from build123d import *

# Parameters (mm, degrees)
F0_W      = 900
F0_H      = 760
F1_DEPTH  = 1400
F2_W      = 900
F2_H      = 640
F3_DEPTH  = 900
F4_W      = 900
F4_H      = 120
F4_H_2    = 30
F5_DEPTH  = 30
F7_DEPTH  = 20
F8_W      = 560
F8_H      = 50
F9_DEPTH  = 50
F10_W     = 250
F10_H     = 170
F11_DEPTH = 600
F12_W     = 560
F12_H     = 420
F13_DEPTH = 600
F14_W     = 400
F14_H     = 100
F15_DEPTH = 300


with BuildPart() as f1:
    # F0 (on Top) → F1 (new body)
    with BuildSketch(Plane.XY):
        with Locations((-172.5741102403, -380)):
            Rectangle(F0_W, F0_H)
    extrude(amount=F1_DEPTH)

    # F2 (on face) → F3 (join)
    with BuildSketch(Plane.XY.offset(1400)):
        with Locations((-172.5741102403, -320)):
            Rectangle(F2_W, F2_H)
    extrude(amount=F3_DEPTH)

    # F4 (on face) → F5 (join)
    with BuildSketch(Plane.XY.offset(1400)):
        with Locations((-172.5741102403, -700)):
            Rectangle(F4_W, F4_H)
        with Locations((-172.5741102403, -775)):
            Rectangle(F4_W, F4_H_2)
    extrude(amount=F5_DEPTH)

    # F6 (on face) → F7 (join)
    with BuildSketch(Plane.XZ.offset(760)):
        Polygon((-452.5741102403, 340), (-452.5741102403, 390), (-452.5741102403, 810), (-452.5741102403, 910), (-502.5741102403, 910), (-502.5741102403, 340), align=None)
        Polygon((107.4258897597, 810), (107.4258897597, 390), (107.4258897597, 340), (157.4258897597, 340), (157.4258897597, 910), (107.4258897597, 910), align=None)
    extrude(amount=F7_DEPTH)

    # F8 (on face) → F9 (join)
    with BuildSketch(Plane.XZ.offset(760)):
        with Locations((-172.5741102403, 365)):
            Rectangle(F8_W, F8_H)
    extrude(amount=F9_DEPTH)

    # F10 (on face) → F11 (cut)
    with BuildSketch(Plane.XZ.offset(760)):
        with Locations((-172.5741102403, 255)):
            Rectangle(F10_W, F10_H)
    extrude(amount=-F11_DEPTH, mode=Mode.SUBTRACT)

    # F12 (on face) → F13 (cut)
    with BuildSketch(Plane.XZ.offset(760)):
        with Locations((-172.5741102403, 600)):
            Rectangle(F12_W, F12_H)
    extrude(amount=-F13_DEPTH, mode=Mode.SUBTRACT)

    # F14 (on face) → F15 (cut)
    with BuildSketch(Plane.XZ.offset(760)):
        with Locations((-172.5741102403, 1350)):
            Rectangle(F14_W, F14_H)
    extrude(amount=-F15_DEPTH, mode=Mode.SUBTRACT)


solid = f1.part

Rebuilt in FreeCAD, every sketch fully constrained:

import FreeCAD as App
import Part
import Sketcher

V = App.Vector
Q = App.Units.Quantity

doc = App.newDocument("Part")
body = doc.addObject("PartDesign::Body", "Body")

# Sketch on XY plane
sketch1 = body.newObject("Sketcher::SketchObject", "Sketch")
sketch1.AttachmentSupport = (doc.getObject("XY_Plane"), [""])
sketch1.MapMode = "FlatFace"
sketch1.addGeometry(Part.LineSegment(V(-623, 0, 0), V(-623, -760, 0)), False)
sketch1.addGeometry(Part.LineSegment(V(-623, -760, 0), V(277, -760, 0)), False)
sketch1.addGeometry(Part.LineSegment(V(277, -760, 0), V(277, 0, 0)), False)
sketch1.addGeometry(Part.LineSegment(V(277, 0, 0), V(-623, 0, 0)), False)
sketch1.addConstraint(Sketcher.Constraint("Coincident", 0, 2, 1, 1))
sketch1.addConstraint(Sketcher.Constraint("Coincident", 1, 2, 2, 1))
sketch1.addConstraint(Sketcher.Constraint("Coincident", 2, 2, 3, 1))
sketch1.addConstraint(Sketcher.Constraint("Coincident", 3, 2, 0, 1))
sketch1.addConstraint(Sketcher.Constraint("Vertical", 0))
sketch1.addConstraint(Sketcher.Constraint("Horizontal", 1))
sketch1.addConstraint(Sketcher.Constraint("Vertical", 2))
sketch1.addConstraint(Sketcher.Constraint("Horizontal", 3))
sketch1.addConstraint(Sketcher.Constraint("PointOnObject", 2, 2, -1))
sketch1.addConstraint(Sketcher.Constraint("DistanceX", 1, 1, 1, 2, Q("900 mm")))
sketch1.addConstraint(Sketcher.Constraint("DistanceY", 0, 2, 0, 1, Q("760 mm")))
sketch1.addConstraint(Sketcher.Constraint("DistanceX", 0, 2, -1, 1, Q("622.57411 mm")))
pad1 = body.newObject("PartDesign::Pad", "Pad")
pad1.Profile = sketch1
pad1.Length = 1400

# Sketch on XY plane
sketch2 = body.newObject("Sketcher::SketchObject", "Sketch001")
sketch2.AttachmentSupport = (doc.getObject("XY_Plane"), [""])
sketch2.MapMode = "FlatFace"
sketch2.AttachmentOffset = App.Placement(V(0, 0, 1400), App.Rotation())
sketch2.addGeometry(Part.LineSegment(V(-623, 0, 0), V(-623, -640, 0)), False)
sketch2.addGeometry(Part.LineSegment(V(-623, -640, 0), V(277, -640, 0)), False)
sketch2.addGeometry(Part.LineSegment(V(277, -640, 0), V(277, 0, 0)), False)
sketch2.addGeometry(Part.LineSegment(V(277, 0, 0), V(-623, 0, 0)), False)
sketch2.addConstraint(Sketcher.Constraint("Coincident", 0, 2, 1, 1))
sketch2.addConstraint(Sketcher.Constraint("Coincident", 1, 2, 2, 1))
sketch2.addConstraint(Sketcher.Constraint("Coincident", 2, 2, 3, 1))
sketch2.addConstraint(Sketcher.Constraint("Coincident", 3, 2, 0, 1))
sketch2.addConstraint(Sketcher.Constraint("Vertical", 0))
sketch2.addConstraint(Sketcher.Constraint("Horizontal", 1))
sketch2.addConstraint(Sketcher.Constraint("Vertical", 2))
sketch2.addConstraint(Sketcher.Constraint("Horizontal", 3))
sketch2.addConstraint(Sketcher.Constraint("PointOnObject", 2, 2, -1))
sketch2.addConstraint(Sketcher.Constraint("DistanceX", 1, 1, 1, 2, Q("900 mm")))
sketch2.addConstraint(Sketcher.Constraint("DistanceY", 0, 2, 0, 1, Q("640 mm")))
sketch2.addConstraint(Sketcher.Constraint("DistanceX", 0, 2, -1, 1, Q("622.57411 mm")))
pad2 = body.newObject("PartDesign::Pad", "Pad001")
pad2.Profile = sketch2
pad2.Length = 900

# Sketch on XY plane
sketch3 = body.newObject("Sketcher::SketchObject", "Sketch002")
sketch3.AttachmentSupport = (doc.getObject("XY_Plane"), [""])
sketch3.MapMode = "FlatFace"
sketch3.AttachmentOffset = App.Placement(V(0, 0, 1400), App.Rotation())
sketch3.addGeometry(Part.LineSegment(V(-623, -640, 0), V(-623, -790, 0)), False)
sketch3.addGeometry(Part.LineSegment(V(-623, -790, 0), V(277, -790, 0)), False)
sketch3.addGeometry(Part.LineSegment(V(277, -790, 0), V(277, -640, 0)), False)
sketch3.addGeometry(Part.LineSegment(V(277, -640, 0), V(-623, -640, 0)), False)
sketch3.addConstraint(Sketcher.Constraint("Coincident", 0, 2, 1, 1))
sketch3.addConstraint(Sketcher.Constraint("Coincident", 1, 2, 2, 1))
sketch3.addConstraint(Sketcher.Constraint("Coincident", 2, 2, 3, 1))
sketch3.addConstraint(Sketcher.Constraint("Coincident", 3, 2, 0, 1))
sketch3.addConstraint(Sketcher.Constraint("Vertical", 0))
sketch3.addConstraint(Sketcher.Constraint("Horizontal", 1))
sketch3.addConstraint(Sketcher.Constraint("Vertical", 2))
sketch3.addConstraint(Sketcher.Constraint("Horizontal", 3))
sketch3.addConstraint(Sketcher.Constraint("DistanceX", 1, 1, 1, 2, Q("900 mm")))
sketch3.addConstraint(Sketcher.Constraint("DistanceY", 0, 2, 0, 1, Q("150 mm")))
sketch3.addConstraint(Sketcher.Constraint("DistanceY", 0, 2, -1, 1, Q("790 mm")))
sketch3.addConstraint(Sketcher.Constraint("DistanceX", 0, 2, -1, 1, Q("622.57411 mm")))
pad3 = body.newObject("PartDesign::Pad", "Pad002")
pad3.Profile = sketch3
pad3.Length = 30

# Sketch on XZ plane
sketch4 = body.newObject("Sketcher::SketchObject", "Sketch003")
sketch4.AttachmentSupport = (doc.getObject("XZ_Plane"), [""])
sketch4.MapMode = "FlatFace"
sketch4.AttachmentOffset = App.Placement(V(0, 0, 760), App.Rotation())
sketch4.addGeometry(Part.LineSegment(V(-453, 340, 0), V(-453, 910, 0)), False)
sketch4.addGeometry(Part.LineSegment(V(-453, 910, 0), V(-503, 910, 0)), False)
sketch4.addGeometry(Part.LineSegment(V(-503, 910, 0), V(-503, 340, 0)), False)
sketch4.addGeometry(Part.LineSegment(V(-503, 340, 0), V(-453, 340, 0)), False)
sketch4.addGeometry(Part.LineSegment(V(107, 340, 0), V(157, 340, 0)), False)
sketch4.addGeometry(Part.LineSegment(V(157, 340, 0), V(157, 910, 0)), False)
sketch4.addGeometry(Part.LineSegment(V(157, 910, 0), V(107, 910, 0)), False)
sketch4.addGeometry(Part.LineSegment(V(107, 910, 0), V(107, 340, 0)), False)
sketch4.addConstraint(Sketcher.Constraint("Coincident", 0, 2, 1, 1))
sketch4.addConstraint(Sketcher.Constraint("Coincident", 1, 2, 2, 1))
sketch4.addConstraint(Sketcher.Constraint("Coincident", 2, 2, 3, 1))
sketch4.addConstraint(Sketcher.Constraint("Coincident", 3, 2, 0, 1))
sketch4.addConstraint(Sketcher.Constraint("Coincident", 4, 2, 5, 1))
sketch4.addConstraint(Sketcher.Constraint("Coincident", 5, 2, 6, 1))
sketch4.addConstraint(Sketcher.Constraint("Coincident", 6, 2, 7, 1))
sketch4.addConstraint(Sketcher.Constraint("Coincident", 7, 2, 4, 1))
sketch4.addConstraint(Sketcher.Constraint("Vertical", 0))
sketch4.addConstraint(Sketcher.Constraint("Horizontal", 1))
sketch4.addConstraint(Sketcher.Constraint("Vertical", 2))
sketch4.addConstraint(Sketcher.Constraint("Horizontal", 3))
sketch4.addConstraint(Sketcher.Constraint("Horizontal", 4))
sketch4.addConstraint(Sketcher.Constraint("Vertical", 5))
sketch4.addConstraint(Sketcher.Constraint("Horizontal", 6))
sketch4.addConstraint(Sketcher.Constraint("Vertical", 7))
sketch4.addConstraint(Sketcher.Constraint("Horizontal", 3, 2, 4, 2))
sketch4.addConstraint(Sketcher.Constraint("Horizontal", 1, 2, 5, 2))
sketch4.addConstraint(Sketcher.Constraint("Equal", 3, 4))
sketch4.addConstraint(Sketcher.Constraint("DistanceX", 1, 2, 1, 1, Q("50 mm")))
sketch4.addConstraint(Sketcher.Constraint("DistanceY", 0, 1, 0, 2, Q("570 mm")))
sketch4.addConstraint(Sketcher.Constraint("DistanceY", -1, 1, 0, 2, Q("910 mm")))
sketch4.addConstraint(Sketcher.Constraint("DistanceX", 3, 2, 4, 2, Q("610 mm")))
sketch4.addConstraint(Sketcher.Constraint("DistanceX", 0, 2, -1, 1, Q("452.57411 mm")))
pad4 = body.newObject("PartDesign::Pad", "Pad003")
pad4.Profile = sketch4
pad4.Length = 20

# Sketch on XZ plane
sketch5 = body.newObject("Sketcher::SketchObject", "Sketch004")
sketch5.AttachmentSupport = (doc.getObject("XZ_Plane"), [""])
sketch5.MapMode = "FlatFace"
sketch5.AttachmentOffset = App.Placement(V(0, 0, 760), App.Rotation())
sketch5.addGeometry(Part.LineSegment(V(-453, 390, 0), V(-453, 340, 0)), False)
sketch5.addGeometry(Part.LineSegment(V(-453, 340, 0), V(107, 340, 0)), False)
sketch5.addGeometry(Part.LineSegment(V(107, 340, 0), V(107, 390, 0)), False)
sketch5.addGeometry(Part.LineSegment(V(107, 390, 0), V(-453, 390, 0)), False)
sketch5.addConstraint(Sketcher.Constraint("Coincident", 0, 2, 1, 1))
sketch5.addConstraint(Sketcher.Constraint("Coincident", 1, 2, 2, 1))
sketch5.addConstraint(Sketcher.Constraint("Coincident", 2, 2, 3, 1))
sketch5.addConstraint(Sketcher.Constraint("Coincident", 3, 2, 0, 1))
sketch5.addConstraint(Sketcher.Constraint("Vertical", 0))
sketch5.addConstraint(Sketcher.Constraint("Horizontal", 1))
sketch5.addConstraint(Sketcher.Constraint("Vertical", 2))
sketch5.addConstraint(Sketcher.Constraint("Horizontal", 3))
sketch5.addConstraint(Sketcher.Constraint("DistanceX", 1, 1, 1, 2, Q("560 mm")))
sketch5.addConstraint(Sketcher.Constraint("DistanceY", 0, 2, 0, 1, Q("50 mm")))
sketch5.addConstraint(Sketcher.Constraint("DistanceY", -1, 1, 0, 2, Q("340 mm")))
sketch5.addConstraint(Sketcher.Constraint("DistanceX", 0, 2, -1, 1, Q("452.57411 mm")))
pad5 = body.newObject("PartDesign::Pad", "Pad004")
pad5.Profile = sketch5
pad5.Length = 50

# Sketch on XZ plane
sketch6 = body.newObject("Sketcher::SketchObject", "Sketch005")
sketch6.AttachmentSupport = (doc.getObject("XZ_Plane"), [""])
sketch6.MapMode = "FlatFace"
sketch6.AttachmentOffset = App.Placement(V(0, 0, 760), App.Rotation())
sketch6.addGeometry(Part.LineSegment(V(-298, 340, 0), V(-298, 170, 0)), False)
sketch6.addGeometry(Part.LineSegment(V(-298, 170, 0), V(-48, 170, 0)), False)
sketch6.addGeometry(Part.LineSegment(V(-48, 170, 0), V(-48, 340, 0)), False)
sketch6.addGeometry(Part.LineSegment(V(-48, 340, 0), V(-298, 340, 0)), False)
sketch6.addConstraint(Sketcher.Constraint("Coincident", 0, 2, 1, 1))
sketch6.addConstraint(Sketcher.Constraint("Coincident", 1, 2, 2, 1))
sketch6.addConstraint(Sketcher.Constraint("Coincident", 2, 2, 3, 1))
sketch6.addConstraint(Sketcher.Constraint("Coincident", 3, 2, 0, 1))
sketch6.addConstraint(Sketcher.Constraint("Vertical", 0))
sketch6.addConstraint(Sketcher.Constraint("Horizontal", 1))
sketch6.addConstraint(Sketcher.Constraint("Vertical", 2))
sketch6.addConstraint(Sketcher.Constraint("Horizontal", 3))
sketch6.addConstraint(Sketcher.Constraint("DistanceX", 1, 1, 1, 2, Q("250 mm")))
sketch6.addConstraint(Sketcher.Constraint("DistanceY", 0, 2, 0, 1, Q("170 mm")))
sketch6.addConstraint(Sketcher.Constraint("DistanceY", -1, 1, 0, 2, Q("170 mm")))
sketch6.addConstraint(Sketcher.Constraint("DistanceX", 0, 2, -1, 1, Q("297.57411 mm")))
pocket1 = body.newObject("PartDesign::Pocket", "Pocket")
pocket1.Profile = sketch6
pocket1.Length = 600

# Sketch on XZ plane
sketch7 = body.newObject("Sketcher::SketchObject", "Sketch006")
sketch7.AttachmentSupport = (doc.getObject("XZ_Plane"), [""])
sketch7.MapMode = "FlatFace"
sketch7.AttachmentOffset = App.Placement(V(0, 0, 760), App.Rotation())
sketch7.addGeometry(Part.LineSegment(V(-453, 810, 0), V(-453, 390, 0)), False)
sketch7.addGeometry(Part.LineSegment(V(-453, 390, 0), V(107, 390, 0)), False)
sketch7.addGeometry(Part.LineSegment(V(107, 390, 0), V(107, 810, 0)), False)
sketch7.addGeometry(Part.LineSegment(V(107, 810, 0), V(-453, 810, 0)), False)
sketch7.addConstraint(Sketcher.Constraint("Coincident", 0, 2, 1, 1))
sketch7.addConstraint(Sketcher.Constraint("Coincident", 1, 2, 2, 1))
sketch7.addConstraint(Sketcher.Constraint("Coincident", 2, 2, 3, 1))
sketch7.addConstraint(Sketcher.Constraint("Coincident", 3, 2, 0, 1))
sketch7.addConstraint(Sketcher.Constraint("Vertical", 0))
sketch7.addConstraint(Sketcher.Constraint("Horizontal", 1))
sketch7.addConstraint(Sketcher.Constraint("Vertical", 2))
sketch7.addConstraint(Sketcher.Constraint("Horizontal", 3))
sketch7.addConstraint(Sketcher.Constraint("DistanceX", 1, 1, 1, 2, Q("560 mm")))
sketch7.addConstraint(Sketcher.Constraint("DistanceY", 0, 2, 0, 1, Q("420 mm")))
sketch7.addConstraint(Sketcher.Constraint("DistanceY", -1, 1, 0, 2, Q("390 mm")))
sketch7.addConstraint(Sketcher.Constraint("DistanceX", 0, 2, -1, 1, Q("452.57411 mm")))
pocket2 = body.newObject("PartDesign::Pocket", "Pocket001")
pocket2.Profile = sketch7
pocket2.Length = 600

# Sketch on XZ plane
sketch8 = body.newObject("Sketcher::SketchObject", "Sketch007")
sketch8.AttachmentSupport = (doc.getObject("XZ_Plane"), [""])
sketch8.MapMode = "FlatFace"
sketch8.AttachmentOffset = App.Placement(V(0, 0, 760), App.Rotation())
sketch8.addGeometry(Part.LineSegment(V(-373, 1400, 0), V(-373, 1300, 0)), False)
sketch8.addGeometry(Part.LineSegment(V(-373, 1300, 0), V(27, 1300, 0)), False)
sketch8.addGeometry(Part.LineSegment(V(27, 1300, 0), V(27, 1400, 0)), False)
sketch8.addGeometry(Part.LineSegment(V(27, 1400, 0), V(-373, 1400, 0)), False)
sketch8.addConstraint(Sketcher.Constraint("Coincident", 0, 2, 1, 1))
sketch8.addConstraint(Sketcher.Constraint("Coincident", 1, 2, 2, 1))
sketch8.addConstraint(Sketcher.Constraint("Coincident", 2, 2, 3, 1))
sketch8.addConstraint(Sketcher.Constraint("Coincident", 3, 2, 0, 1))
sketch8.addConstraint(Sketcher.Constraint("Vertical", 0))
sketch8.addConstraint(Sketcher.Constraint("Horizontal", 1))
sketch8.addConstraint(Sketcher.Constraint("Vertical", 2))
sketch8.addConstraint(Sketcher.Constraint("Horizontal", 3))
sketch8.addConstraint(Sketcher.Constraint("DistanceX", 1, 1, 1, 2, Q("400 mm")))
sketch8.addConstraint(Sketcher.Constraint("DistanceY", 0, 2, 0, 1, Q("100 mm")))
sketch8.addConstraint(Sketcher.Constraint("DistanceY", -1, 1, 0, 2, Q("1300 mm")))
sketch8.addConstraint(Sketcher.Constraint("DistanceX", 0, 2, -1, 1, Q("372.57411 mm")))
pocket3 = body.newObject("PartDesign::Pocket", "Pocket002")
pocket3.Profile = sketch8
pocket3.Length = 300

doc.recompute()
